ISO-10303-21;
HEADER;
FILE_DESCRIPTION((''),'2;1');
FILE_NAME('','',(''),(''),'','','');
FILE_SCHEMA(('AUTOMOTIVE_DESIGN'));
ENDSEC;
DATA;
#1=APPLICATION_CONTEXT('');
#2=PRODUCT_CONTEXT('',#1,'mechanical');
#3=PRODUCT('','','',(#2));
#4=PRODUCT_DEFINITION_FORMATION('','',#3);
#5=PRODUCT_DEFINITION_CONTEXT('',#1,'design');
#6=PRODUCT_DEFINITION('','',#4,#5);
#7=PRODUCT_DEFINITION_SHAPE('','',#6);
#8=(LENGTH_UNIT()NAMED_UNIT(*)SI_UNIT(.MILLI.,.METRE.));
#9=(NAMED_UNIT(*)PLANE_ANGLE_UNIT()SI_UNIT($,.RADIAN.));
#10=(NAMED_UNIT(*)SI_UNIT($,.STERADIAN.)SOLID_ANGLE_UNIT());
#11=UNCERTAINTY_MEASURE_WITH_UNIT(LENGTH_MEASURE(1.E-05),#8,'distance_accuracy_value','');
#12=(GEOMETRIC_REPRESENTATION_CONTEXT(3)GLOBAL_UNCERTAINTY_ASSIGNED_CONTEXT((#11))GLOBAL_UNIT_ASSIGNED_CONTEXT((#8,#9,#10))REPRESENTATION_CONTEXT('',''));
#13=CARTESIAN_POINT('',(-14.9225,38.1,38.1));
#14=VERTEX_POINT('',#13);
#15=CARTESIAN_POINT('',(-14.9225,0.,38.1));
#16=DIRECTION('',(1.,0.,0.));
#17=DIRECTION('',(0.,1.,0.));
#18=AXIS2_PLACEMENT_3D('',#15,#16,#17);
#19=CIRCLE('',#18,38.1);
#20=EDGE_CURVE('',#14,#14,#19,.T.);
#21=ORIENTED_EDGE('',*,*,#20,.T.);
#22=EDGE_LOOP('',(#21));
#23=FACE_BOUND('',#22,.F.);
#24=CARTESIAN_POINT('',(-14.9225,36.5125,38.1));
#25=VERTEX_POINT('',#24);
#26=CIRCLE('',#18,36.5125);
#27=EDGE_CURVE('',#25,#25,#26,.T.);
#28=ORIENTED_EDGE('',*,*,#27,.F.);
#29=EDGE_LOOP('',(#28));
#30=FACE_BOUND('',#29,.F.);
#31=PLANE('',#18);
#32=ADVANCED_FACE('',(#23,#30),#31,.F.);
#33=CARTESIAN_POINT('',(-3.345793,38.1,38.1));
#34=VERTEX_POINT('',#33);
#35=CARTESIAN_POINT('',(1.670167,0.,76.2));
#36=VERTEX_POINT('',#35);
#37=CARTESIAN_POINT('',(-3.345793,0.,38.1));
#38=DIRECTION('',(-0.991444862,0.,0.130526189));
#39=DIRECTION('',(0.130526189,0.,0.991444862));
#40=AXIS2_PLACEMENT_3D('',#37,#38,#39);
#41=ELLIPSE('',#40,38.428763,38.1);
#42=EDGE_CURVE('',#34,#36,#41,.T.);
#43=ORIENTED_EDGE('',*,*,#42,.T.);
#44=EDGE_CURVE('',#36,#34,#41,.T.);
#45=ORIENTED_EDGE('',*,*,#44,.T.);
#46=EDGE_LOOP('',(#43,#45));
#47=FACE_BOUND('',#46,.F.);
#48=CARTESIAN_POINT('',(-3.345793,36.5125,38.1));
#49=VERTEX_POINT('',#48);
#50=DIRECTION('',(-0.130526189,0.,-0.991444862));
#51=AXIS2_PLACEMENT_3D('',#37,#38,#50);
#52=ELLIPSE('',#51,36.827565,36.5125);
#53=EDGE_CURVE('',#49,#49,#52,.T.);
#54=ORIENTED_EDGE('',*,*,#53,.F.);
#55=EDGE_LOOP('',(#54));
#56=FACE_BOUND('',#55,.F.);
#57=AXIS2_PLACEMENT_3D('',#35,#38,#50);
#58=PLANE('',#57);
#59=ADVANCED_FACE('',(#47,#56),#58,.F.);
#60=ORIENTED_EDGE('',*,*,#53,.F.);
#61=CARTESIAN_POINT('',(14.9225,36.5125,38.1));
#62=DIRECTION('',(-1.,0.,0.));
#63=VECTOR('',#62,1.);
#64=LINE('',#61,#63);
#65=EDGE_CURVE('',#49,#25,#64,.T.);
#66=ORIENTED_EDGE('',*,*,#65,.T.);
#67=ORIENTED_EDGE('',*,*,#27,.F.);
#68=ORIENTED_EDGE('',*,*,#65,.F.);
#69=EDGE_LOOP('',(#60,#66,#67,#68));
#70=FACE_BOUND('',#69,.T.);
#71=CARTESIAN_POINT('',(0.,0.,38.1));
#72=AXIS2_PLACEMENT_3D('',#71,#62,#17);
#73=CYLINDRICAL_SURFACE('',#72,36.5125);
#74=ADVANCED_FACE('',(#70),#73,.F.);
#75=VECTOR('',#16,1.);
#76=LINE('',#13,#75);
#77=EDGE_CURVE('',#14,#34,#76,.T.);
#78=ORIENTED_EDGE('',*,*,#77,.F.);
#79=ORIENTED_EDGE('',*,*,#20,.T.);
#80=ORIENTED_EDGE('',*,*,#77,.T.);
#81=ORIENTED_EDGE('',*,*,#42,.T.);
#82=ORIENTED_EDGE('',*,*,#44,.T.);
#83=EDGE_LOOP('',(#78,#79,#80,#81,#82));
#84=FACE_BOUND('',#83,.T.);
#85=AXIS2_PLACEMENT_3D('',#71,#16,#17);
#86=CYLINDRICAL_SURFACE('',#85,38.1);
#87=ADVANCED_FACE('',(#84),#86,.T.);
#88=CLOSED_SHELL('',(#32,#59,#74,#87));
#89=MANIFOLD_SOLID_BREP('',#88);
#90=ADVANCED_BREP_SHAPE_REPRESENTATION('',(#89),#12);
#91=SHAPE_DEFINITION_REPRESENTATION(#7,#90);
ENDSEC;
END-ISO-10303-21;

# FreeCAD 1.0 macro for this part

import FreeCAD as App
import Part
import Sketcher

V = App.Vector
Q = App.Units.Quantity

doc = App.newDocument("Part")
body = doc.addObject("PartDesign::Body", "Body")

# Sketch on YZ plane
sketch1 = body.newObject("Sketcher::SketchObject", "Sketch")
sketch1.AttachmentSupport = (doc.getObject("YZ_Plane"), [""])
sketch1.MapMode = "FlatFace"
sketch1.addGeometry([
    Part.Circle(V(0, 38.1, 0), V(0, 0, 1), 38.1),
    Part.Circle(V(0, 38.1, 0), V(0, 0, 1), 36.5125),
], False)
sketch1.addConstraint([
    Sketcher.Constraint("Coincident", 1, 3, 0, 3),
    Sketcher.Constraint("PointOnObject", 0, 3, -2),
    Sketcher.Constraint("Diameter", 0, Q("3 in")),
    Sketcher.Constraint("Diameter", 1, Q("2.875 in")),
    Sketcher.Constraint("DistanceY", -1, 1, 0, 3, Q("1.5 in")),
])
pad1 = body.newObject("PartDesign::Pad", "Pad")
pad1.Profile = sketch1
pad1.Length = Q("1.175 in")
pad1.Midplane = True

# Sketch on XZ plane
sketch2 = body.newObject("Sketcher::SketchObject", "Sketch001")
sketch2.AttachmentSupport = (doc.getObject("XZ_Plane"), [""])
sketch2.MapMode = "FlatFace"
sketch2.addGeometry([
    Part.LineSegment(V(1.670167, 76.2, 0), V(-10.148637, -13.572731, 0)),
    Part.LineSegment(V(-10.148637, -13.572731, 0), V(14.989981, -13.572731, 0)),
    Part.LineSegment(V(14.989981, -13.572731, 0), V(14.989981, 76.2, 0)),
    Part.LineSegment(V(14.989981, 76.2, 0), V(1.670167, 76.2, 0)),
], False)
sketch2.addConstraint([
    Sketcher.Constraint("Coincident", 0, 2, 1, 1),
    Sketcher.Constraint("Coincident", 1, 2, 2, 1),
    Sketcher.Constraint("Coincident", 2, 2, 3, 1),
    Sketcher.Constraint("Coincident", 3, 2, 0, 1),
    Sketcher.Constraint("Horizontal", 1),
    Sketcher.Constraint("Vertical", 2),
    Sketcher.Constraint("Horizontal", 3),
    Sketcher.Constraint("DistanceY", -1, 1, 2, 2, Q("3 in")),
    Sketcher.Constraint("Angle", 0, Q("-97.5 deg")),
    Sketcher.Constraint("DistanceX", 1, 1, 1, 2, 25.138618),
    Sketcher.Constraint("DistanceY", 2, 1, 2, 2, 89.772731),
    Sketcher.Constraint("DistanceX", -1, 1, 1, 2, 14.989981),
])
pocket1 = body.newObject("PartDesign::Pocket", "Pocket")
pocket1.Profile = sketch2
pocket1.Length = Q("5 in")
pocket1.Midplane = True

doc.recompute()
